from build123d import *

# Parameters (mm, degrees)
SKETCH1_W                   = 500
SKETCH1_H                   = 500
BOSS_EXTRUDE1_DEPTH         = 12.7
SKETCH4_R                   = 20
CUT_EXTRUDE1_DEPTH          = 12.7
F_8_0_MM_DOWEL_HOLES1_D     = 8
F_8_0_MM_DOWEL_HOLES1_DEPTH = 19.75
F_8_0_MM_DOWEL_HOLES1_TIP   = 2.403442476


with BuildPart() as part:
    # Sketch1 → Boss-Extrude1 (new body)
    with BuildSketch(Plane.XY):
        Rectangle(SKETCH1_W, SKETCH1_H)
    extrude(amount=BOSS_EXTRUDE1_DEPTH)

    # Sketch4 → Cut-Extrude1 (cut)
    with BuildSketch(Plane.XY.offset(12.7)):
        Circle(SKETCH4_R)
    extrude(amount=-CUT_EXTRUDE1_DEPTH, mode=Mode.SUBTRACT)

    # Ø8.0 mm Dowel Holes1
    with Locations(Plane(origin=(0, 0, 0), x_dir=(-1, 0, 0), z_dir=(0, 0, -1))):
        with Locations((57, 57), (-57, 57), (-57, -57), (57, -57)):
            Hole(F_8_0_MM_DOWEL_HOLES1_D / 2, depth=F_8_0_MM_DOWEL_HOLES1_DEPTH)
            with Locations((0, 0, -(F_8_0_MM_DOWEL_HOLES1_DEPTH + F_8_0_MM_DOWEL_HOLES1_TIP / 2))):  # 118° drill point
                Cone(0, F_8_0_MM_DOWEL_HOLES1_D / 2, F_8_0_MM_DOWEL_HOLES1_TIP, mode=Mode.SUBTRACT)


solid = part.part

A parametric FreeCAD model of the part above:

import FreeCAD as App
import Part
import Sketcher
from FreeCAD import Vector

doc = App.newDocument("Part")
body = doc.addObject("PartDesign::Body", "Body")

# Sketch on XY plane
sketch1 = body.newObject("Sketcher::SketchObject", "Sketch")
sketch1.AttachmentSupport = (doc.getObject("XY_Plane"), [""])
sketch1.MapMode = "FlatFace"
sketch1.addGeometry([
    Part.LineSegment(Vector(-250, 250, 0), Vector(-250, -250, 0)),
    Part.LineSegment(Vector(-250, -250, 0), Vector(250, -250, 0)),
    Part.LineSegment(Vector(250, -250, 0), Vector(250, 250, 0)),
    Part.LineSegment(Vector(250, 250, 0), Vector(-250, 250, 0)),
], False)
sketch1.addConstraint([
    Sketcher.Constraint("Coincident", 0, 2, 1, 1),
    Sketcher.Constraint("Coincident", 1, 2, 2, 1),
    Sketcher.Constraint("Coincident", 2, 2, 3, 1),
    Sketcher.Constraint("Coincident", 3, 2, 0, 1),
    Sketcher.Constraint("Vertical", 0),
    Sketcher.Constraint("Horizontal", 1),
    Sketcher.Constraint("Vertical", 2),
    Sketcher.Constraint("Horizontal", 3),
    Sketcher.Constraint("Symmetric", 0, 2, 2, 2, -1, 1),
    Sketcher.Constraint("Equal", 3, 0),
    Sketcher.Constraint("DistanceX", 1, 1, 1, 2, 500.0),
])
pad1 = body.newObject("PartDesign::Pad", "Pad")
pad1.Profile = sketch1
pad1.Length = 12.7

# Sketch on XY plane
sketch2 = body.newObject("Sketcher::SketchObject", "Sketch001")
sketch2.AttachmentSupport = (doc.getObject("XY_Plane"), [""])
sketch2.MapMode = "FlatFace"
sketch2.AttachmentOffset = App.Placement(Vector(0, 0, 12.7), App.Rotation())
sketch2.addGeometry(Part.Circle(Vector(0, 0, 0), Vector(0, 0, 1), 20), False)
sketch2.addConstraint([
    Sketcher.Constraint("Coincident", 0, 3, -1, 1),
    Sketcher.Constraint("Diameter", 0, 40.0),
])
pocket1 = body.newObject("PartDesign::Pocket", "Pocket")
pocket1.Profile = sketch2
pocket1.Length = 12.7

# Sketch on XY plane
sketch3 = body.newObject("Sketcher::SketchObject", "Sketch002")
sketch3.AttachmentSupport = (doc.getObject("XY_Plane"), [""])
sketch3.MapMode = "FlatFace"
sketch3.addGeometry([
    Part.Circle(Vector(-57, 57, 0), Vector(0, 0, 1), 4),
    Part.Circle(Vector(57, 57, 0), Vector(0, 0, 1), 4),
    Part.Circle(Vector(57, -57, 0), Vector(0, 0, 1), 4),
    Part.Circle(Vector(-57, -57, 0), Vector(0, 0, 1), 4),
], False)
sketch3.addConstraint([
    Sketcher.Constraint("Equal", 0, 1),
    Sketcher.Constraint("Equal", 1, 2),
    Sketcher.Constraint("Equal", 2, 3),
    Sketcher.Constraint("Symmetric", 0, 3, 2, 3, -1, 1),
    Sketcher.Constraint("Symmetric", 1, 3, 3, 3, -1, 1),
    Sketcher.Constraint("Symmetric", 0, 3, 1, 3, -2),
    Sketcher.Constraint("Diameter", 0, 8.0),
    Sketcher.Constraint("DistanceX", 0, 3, -1, 1, 57.0),
    Sketcher.Constraint("DistanceY", -1, 1, 0, 3, 57.0),
])
doc.recompute()
hole = body.newObject("PartDesign::Hole", "Hole")
hole.Profile = sketch3
hole.ThreadType = "None"
hole.Diameter = 8
hole.DepthType = "Dimension"
hole.Depth = 19.75
hole.DrillPoint = "Angled"
hole.DrillPointAngle = 118
hole.Reversed = True

doc.recompute()
